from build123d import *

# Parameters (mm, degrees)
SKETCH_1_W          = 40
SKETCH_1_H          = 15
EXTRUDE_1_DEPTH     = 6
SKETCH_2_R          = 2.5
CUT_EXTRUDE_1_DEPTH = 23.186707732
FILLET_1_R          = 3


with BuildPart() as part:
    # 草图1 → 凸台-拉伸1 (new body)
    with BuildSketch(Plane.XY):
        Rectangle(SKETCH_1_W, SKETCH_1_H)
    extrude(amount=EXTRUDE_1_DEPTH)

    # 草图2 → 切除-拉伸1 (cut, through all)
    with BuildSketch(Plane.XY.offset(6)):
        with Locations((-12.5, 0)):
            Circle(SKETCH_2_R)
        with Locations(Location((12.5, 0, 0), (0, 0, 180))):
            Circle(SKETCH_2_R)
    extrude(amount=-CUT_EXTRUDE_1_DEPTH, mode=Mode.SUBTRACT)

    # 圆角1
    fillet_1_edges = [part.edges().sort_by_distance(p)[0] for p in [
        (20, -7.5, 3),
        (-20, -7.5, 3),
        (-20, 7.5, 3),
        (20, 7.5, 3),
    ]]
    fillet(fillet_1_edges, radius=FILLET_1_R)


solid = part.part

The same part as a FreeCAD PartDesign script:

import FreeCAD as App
import Part
import Sketcher

V = App.Vector
Q = App.Units.Quantity


def edges_at(feature, points):
    """Names of the edges that pass closest to the given points."""
    edges = feature.Shape.Edges
    near = lambda p: min(range(len(edges)), key=lambda i: edges[i].distToShape(Part.Vertex(*p))[0])
    return sorted({f"Edge{near(p) + 1}" for p in points})


def add_polygon(sketch, points):
    """Adds a closed chain of lines whose ends are joined by coincident constraints."""
    first, n = sketch.GeometryCount, len(points)
    for a, b in zip(points, points[1:] + points[:1]):
        sketch.addGeometry(Part.LineSegment(App.Vector(*a, 0), App.Vector(*b, 0)), False)
    for i in range(n):
        sketch.addConstraint(Sketcher.Constraint("Coincident", first + i, 2, first + (i + 1) % n, 1))

doc = App.newDocument("Part")
body = doc.addObject("PartDesign::Body", "Body")

# Sketch on XY plane
sketch1 = body.newObject("Sketcher::SketchObject", "Sketch")
sketch1.AttachmentSupport = (doc.getObject("XY_Plane"), [""])
sketch1.MapMode = "FlatFace"
add_polygon(sketch1, [(-20, 8), (-20, -8), (20, -8), (20, 8)])  # lines 0-3
sketch1.addConstraint(Sketcher.Constraint("Vertical", 0))
sketch1.addConstraint(Sketcher.Constraint("Horizontal", 1))
sketch1.addConstraint(Sketcher.Constraint("Vertical", 2))
sketch1.addConstraint(Sketcher.Constraint("Horizontal", 3))
sketch1.addConstraint(Sketcher.Constraint("Symmetric", 0, 2, 2, 2, -1, 1))
sketch1.addConstraint(Sketcher.Constraint("DistanceX", 1, 1, 1, 2, Q("40 mm")))
sketch1.addConstraint(Sketcher.Constraint("DistanceY", 0, 2, 0, 1, Q("15 mm")))
pad1 = body.newObject("PartDesign::Pad", "Pad")
pad1.Profile = sketch1
pad1.Length = 6

# Sketch on XY plane
sketch2 = body.newObject("Sketcher::SketchObject", "Sketch001")
sketch2.AttachmentSupport = (doc.getObject("XY_Plane"), [""])
sketch2.MapMode = "FlatFace"
sketch2.AttachmentOffset = App.Placement(V(0, 0, 6), App.Rotation())
sketch2.addGeometry(Part.Circle(V(-12.5, 0, 0), V(0, 0, 1), 2.5), False)
sketch2.addGeometry(Part.Circle(V(12.5, 0, 0), V(0, 0, 1), 2.5), False)
sketch2.addConstraint(Sketcher.Constraint("Equal", 0, 1))
sketch2.addConstraint(Sketcher.Constraint("Symmetric", 0, 3, 1, 3, -1, 1))
sketch2.addConstraint(Sketcher.Constraint("PointOnObject", 0, 3, -1))
sketch2.addConstraint(Sketcher.Constraint("Diameter", 0, Q("5 mm")))
sketch2.addConstraint(Sketcher.Constraint("DistanceX", 0, 3, 1, 3, Q("25 mm")))
pocket1 = body.newObject("PartDesign::Pocket", "Pocket")
pocket1.Profile = sketch2
pocket1.Type = "ThroughAll"
doc.recompute()

fillet = body.newObject("PartDesign::Fillet", "Fillet")
fillet.Base = (pocket1, edges_at(pocket1, [
    (20, -7.5, 3),
    (-20, -7.5, 3),
    (-20, 7.5, 3),
    (20, 7.5, 3),
]))
fillet.Radius = 3

doc.recompute()
